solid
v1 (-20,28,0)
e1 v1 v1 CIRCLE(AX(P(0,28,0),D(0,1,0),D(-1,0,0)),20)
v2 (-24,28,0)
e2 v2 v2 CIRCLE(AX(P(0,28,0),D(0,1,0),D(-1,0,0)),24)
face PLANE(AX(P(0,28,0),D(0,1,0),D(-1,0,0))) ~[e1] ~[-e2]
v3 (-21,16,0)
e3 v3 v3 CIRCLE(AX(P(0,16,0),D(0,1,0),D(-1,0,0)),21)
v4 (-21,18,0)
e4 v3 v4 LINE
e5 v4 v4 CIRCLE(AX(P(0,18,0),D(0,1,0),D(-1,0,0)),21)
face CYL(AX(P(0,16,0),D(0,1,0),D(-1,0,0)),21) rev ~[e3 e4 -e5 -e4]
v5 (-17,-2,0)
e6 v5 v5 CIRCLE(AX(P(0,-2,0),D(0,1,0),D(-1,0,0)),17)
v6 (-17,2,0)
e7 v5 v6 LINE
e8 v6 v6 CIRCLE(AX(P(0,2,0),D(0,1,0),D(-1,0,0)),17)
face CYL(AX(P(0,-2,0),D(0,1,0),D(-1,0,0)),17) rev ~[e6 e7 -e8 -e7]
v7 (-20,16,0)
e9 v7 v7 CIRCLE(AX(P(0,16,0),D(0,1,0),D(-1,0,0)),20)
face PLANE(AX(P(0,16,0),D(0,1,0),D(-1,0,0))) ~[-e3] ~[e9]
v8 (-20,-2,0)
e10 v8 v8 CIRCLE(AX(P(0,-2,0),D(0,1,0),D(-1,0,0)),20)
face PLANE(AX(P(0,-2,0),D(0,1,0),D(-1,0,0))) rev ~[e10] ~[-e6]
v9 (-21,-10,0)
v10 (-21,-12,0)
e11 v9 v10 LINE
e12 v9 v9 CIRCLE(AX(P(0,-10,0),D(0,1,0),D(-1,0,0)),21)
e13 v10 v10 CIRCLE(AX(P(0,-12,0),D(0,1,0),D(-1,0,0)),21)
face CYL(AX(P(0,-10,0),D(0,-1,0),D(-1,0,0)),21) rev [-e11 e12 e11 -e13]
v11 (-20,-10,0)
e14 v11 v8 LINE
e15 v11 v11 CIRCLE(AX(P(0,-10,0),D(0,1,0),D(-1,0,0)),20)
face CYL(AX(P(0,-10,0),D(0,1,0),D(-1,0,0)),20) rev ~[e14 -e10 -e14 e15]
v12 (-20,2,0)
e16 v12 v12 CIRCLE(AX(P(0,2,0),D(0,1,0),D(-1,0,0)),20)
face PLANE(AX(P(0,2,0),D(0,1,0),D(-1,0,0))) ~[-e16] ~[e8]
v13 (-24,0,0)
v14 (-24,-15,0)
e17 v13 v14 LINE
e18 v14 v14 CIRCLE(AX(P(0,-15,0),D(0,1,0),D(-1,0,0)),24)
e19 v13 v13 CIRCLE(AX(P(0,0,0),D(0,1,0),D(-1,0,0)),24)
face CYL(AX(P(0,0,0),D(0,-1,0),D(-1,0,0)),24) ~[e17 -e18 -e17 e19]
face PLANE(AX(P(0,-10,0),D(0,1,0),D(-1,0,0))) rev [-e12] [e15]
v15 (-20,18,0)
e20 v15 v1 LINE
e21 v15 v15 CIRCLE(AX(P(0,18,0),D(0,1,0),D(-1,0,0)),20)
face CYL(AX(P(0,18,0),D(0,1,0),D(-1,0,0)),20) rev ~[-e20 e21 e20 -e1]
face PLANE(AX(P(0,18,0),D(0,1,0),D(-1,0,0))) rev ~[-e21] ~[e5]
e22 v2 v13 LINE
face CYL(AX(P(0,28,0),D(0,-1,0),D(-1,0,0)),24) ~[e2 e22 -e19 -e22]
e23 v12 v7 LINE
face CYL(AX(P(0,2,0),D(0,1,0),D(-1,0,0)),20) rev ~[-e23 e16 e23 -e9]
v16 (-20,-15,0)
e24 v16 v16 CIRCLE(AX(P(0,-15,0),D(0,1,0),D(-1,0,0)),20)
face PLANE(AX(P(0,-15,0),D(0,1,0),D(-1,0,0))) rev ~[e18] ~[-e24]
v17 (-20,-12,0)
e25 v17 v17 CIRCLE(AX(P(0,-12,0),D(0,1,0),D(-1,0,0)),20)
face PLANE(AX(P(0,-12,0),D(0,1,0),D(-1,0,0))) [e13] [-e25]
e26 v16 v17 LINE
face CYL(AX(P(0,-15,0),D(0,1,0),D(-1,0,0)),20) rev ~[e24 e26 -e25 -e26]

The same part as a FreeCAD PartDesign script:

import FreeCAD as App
import Part
import Sketcher

doc = App.newDocument("Part")
params = doc.addObject("Spreadsheet::Sheet", "Params")
for row, (alias, value) in enumerate([
    ("sketch1_width", "4 mm"),
    ("sketch1_width2", "1 mm"),
    ("sketch1_width3", "3 mm"),
    ("sketch1_height", "2 mm"),
    ("sketch1_height2", "14 mm"),
    ("revolution_angle", "360 deg"),
], start=1):
    params.set(f"A{row}", alias)
    params.set(f"B{row}", "=" + value)
    params.setAlias(f"B{row}", alias)

body = doc.addObject("PartDesign::Body", "Body")

sketch1 = doc.addObject("Sketcher::SketchObject", "Sketch")
body.addObject(sketch1)
sketch1.AttachmentSupport = (doc.XY_Plane, [""])
sketch1.MapMode = "FlatFace"
sketch1.addGeometry([
    Part.LineSegment(App.Vector(24, 28, 0), App.Vector(20, 28, 0)),
    Part.LineSegment(App.Vector(20, 28, 0), App.Vector(20, 18, 0)),
    Part.LineSegment(App.Vector(20, 18, 0), App.Vector(21, 18, 0)),
    Part.LineSegment(App.Vector(21, 18, 0), App.Vector(21, 16, 0)),
    Part.LineSegment(App.Vector(21, 16, 0), App.Vector(20, 16, 0)),
    Part.LineSegment(App.Vector(20, 16, 0), App.Vector(20, 2, 0)),
    Part.LineSegment(App.Vector(20, 2, 0), App.Vector(17, 2, 0)),
    Part.LineSegment(App.Vector(17, 2, 0), App.Vector(17, -2, 0)),
    Part.LineSegment(App.Vector(17, -2, 0), App.Vector(20, -2, 0)),
    Part.LineSegment(App.Vector(20, -2, 0), App.Vector(20, -10, 0)),
    Part.LineSegment(App.Vector(20, -10, 0), App.Vector(21, -10, 0)),
    Part.LineSegment(App.Vector(21, -10, 0), App.Vector(21, -12, 0)),
    Part.LineSegment(App.Vector(21, -12, 0), App.Vector(20, -12, 0)),
    Part.LineSegment(App.Vector(20, -12, 0), App.Vector(20, -15, 0)),
    Part.LineSegment(App.Vector(20, -15, 0), App.Vector(24, -15, 0)),
    Part.LineSegment(App.Vector(24, -15, 0), App.Vector(24, 28, 0)),
], False)
sketch1.addConstraint([
    Sketcher.Constraint("Coincident", 0, 2, 1, 1),
    Sketcher.Constraint("Coincident", 1, 2, 2, 1),
    Sketcher.Constraint("Coincident", 2, 2, 3, 1),
    Sketcher.Constraint("Coincident", 3, 2, 4, 1),
    Sketcher.Constraint("Coincident", 4, 2, 5, 1),
    Sketcher.Constraint("Coincident", 5, 2, 6, 1),
    Sketcher.Constraint("Coincident", 6, 2, 7, 1),
    Sketcher.Constraint("Coincident", 7, 2, 8, 1),
    Sketcher.Constraint("Coincident", 8, 2, 9, 1),
    Sketcher.Constraint("Coincident", 9, 2, 10, 1),
    Sketcher.Constraint("Coincident", 10, 2, 11, 1),
    Sketcher.Constraint("Coincident", 11, 2, 12, 1),
    Sketcher.Constraint("Coincident", 12, 2, 13, 1),
    Sketcher.Constraint("Coincident", 13, 2, 14, 1),
    Sketcher.Constraint("Coincident", 14, 2, 15, 1),
    Sketcher.Constraint("Coincident", 15, 2, 0, 1),
    Sketcher.Constraint("Horizontal", 0),
    Sketcher.Constraint("Vertical", 1),
    Sketcher.Constraint("Horizontal", 2),
    Sketcher.Constraint("Vertical", 3),
    Sketcher.Constraint("Horizontal", 4),
    Sketcher.Constraint("Vertical", 5),
    Sketcher.Constraint("Horizontal", 6),
    Sketcher.Constraint("Vertical", 7),
    Sketcher.Constraint("Horizontal", 8),
    Sketcher.Constraint("Vertical", 9),
    Sketcher.Constraint("Horizontal", 10),
    Sketcher.Constraint("Vertical", 11),
    Sketcher.Constraint("Horizontal", 12),
    Sketcher.Constraint("Vertical", 13),
    Sketcher.Constraint("Horizontal", 14),
    Sketcher.Constraint("Vertical", 15),
    Sketcher.Constraint("Symmetric", 5, 2, 8, 2, -1),
    Sketcher.Constraint("Vertical", 1, 2, 4, 2),
    Sketcher.Constraint("Vertical", 3, 2, 10, 2),
    Sketcher.Constraint("Vertical", 9, 2, 12, 2),
    Sketcher.Constraint("Equal", 14, 7),
    Sketcher.Constraint("Equal", 3, 11),
    Sketcher.Constraint("Equal", 8, 13),
    Sketcher.Constraint("DistanceX", 0, 2, 0, 1, 4.0),
    Sketcher.Constraint("DistanceX", 2, 1, 2, 2, 1.0),
    Sketcher.Constraint("DistanceX", 6, 2, 6, 1, 3.0),
    Sketcher.Constraint("DistanceY", 3, 2, 3, 1, 2.0),
    Sketcher.Constraint("DistanceY", 5, 2, 5, 1, 14.0),
    Sketcher.Constraint("DistanceY", 9, 2, 9, 1, 8.0),
    Sketcher.Constraint("DistanceY", -1, 1, 0, 2, 28.0),
    Sketcher.Constraint("DistanceX", -1, 1, 0, 2, 20.0),
])
sketch1.setExpression("Constraints[39]", "Params.sketch1_width")
sketch1.setExpression("Constraints[40]", "Params.sketch1_width2")
sketch1.setExpression("Constraints[41]", "Params.sketch1_width3")
sketch1.setExpression("Constraints[42]", "Params.sketch1_height")
sketch1.setExpression("Constraints[43]", "Params.sketch1_height2")
revolution = doc.addObject("PartDesign::Revolution", "Revolution")
body.addObject(revolution)
revolution.Profile = sketch1
revolution.ReferenceAxis = (sketch1, ["V_Axis"])
revolution.setExpression("Angle", "Params.revolution_angle")

doc.recompute()
